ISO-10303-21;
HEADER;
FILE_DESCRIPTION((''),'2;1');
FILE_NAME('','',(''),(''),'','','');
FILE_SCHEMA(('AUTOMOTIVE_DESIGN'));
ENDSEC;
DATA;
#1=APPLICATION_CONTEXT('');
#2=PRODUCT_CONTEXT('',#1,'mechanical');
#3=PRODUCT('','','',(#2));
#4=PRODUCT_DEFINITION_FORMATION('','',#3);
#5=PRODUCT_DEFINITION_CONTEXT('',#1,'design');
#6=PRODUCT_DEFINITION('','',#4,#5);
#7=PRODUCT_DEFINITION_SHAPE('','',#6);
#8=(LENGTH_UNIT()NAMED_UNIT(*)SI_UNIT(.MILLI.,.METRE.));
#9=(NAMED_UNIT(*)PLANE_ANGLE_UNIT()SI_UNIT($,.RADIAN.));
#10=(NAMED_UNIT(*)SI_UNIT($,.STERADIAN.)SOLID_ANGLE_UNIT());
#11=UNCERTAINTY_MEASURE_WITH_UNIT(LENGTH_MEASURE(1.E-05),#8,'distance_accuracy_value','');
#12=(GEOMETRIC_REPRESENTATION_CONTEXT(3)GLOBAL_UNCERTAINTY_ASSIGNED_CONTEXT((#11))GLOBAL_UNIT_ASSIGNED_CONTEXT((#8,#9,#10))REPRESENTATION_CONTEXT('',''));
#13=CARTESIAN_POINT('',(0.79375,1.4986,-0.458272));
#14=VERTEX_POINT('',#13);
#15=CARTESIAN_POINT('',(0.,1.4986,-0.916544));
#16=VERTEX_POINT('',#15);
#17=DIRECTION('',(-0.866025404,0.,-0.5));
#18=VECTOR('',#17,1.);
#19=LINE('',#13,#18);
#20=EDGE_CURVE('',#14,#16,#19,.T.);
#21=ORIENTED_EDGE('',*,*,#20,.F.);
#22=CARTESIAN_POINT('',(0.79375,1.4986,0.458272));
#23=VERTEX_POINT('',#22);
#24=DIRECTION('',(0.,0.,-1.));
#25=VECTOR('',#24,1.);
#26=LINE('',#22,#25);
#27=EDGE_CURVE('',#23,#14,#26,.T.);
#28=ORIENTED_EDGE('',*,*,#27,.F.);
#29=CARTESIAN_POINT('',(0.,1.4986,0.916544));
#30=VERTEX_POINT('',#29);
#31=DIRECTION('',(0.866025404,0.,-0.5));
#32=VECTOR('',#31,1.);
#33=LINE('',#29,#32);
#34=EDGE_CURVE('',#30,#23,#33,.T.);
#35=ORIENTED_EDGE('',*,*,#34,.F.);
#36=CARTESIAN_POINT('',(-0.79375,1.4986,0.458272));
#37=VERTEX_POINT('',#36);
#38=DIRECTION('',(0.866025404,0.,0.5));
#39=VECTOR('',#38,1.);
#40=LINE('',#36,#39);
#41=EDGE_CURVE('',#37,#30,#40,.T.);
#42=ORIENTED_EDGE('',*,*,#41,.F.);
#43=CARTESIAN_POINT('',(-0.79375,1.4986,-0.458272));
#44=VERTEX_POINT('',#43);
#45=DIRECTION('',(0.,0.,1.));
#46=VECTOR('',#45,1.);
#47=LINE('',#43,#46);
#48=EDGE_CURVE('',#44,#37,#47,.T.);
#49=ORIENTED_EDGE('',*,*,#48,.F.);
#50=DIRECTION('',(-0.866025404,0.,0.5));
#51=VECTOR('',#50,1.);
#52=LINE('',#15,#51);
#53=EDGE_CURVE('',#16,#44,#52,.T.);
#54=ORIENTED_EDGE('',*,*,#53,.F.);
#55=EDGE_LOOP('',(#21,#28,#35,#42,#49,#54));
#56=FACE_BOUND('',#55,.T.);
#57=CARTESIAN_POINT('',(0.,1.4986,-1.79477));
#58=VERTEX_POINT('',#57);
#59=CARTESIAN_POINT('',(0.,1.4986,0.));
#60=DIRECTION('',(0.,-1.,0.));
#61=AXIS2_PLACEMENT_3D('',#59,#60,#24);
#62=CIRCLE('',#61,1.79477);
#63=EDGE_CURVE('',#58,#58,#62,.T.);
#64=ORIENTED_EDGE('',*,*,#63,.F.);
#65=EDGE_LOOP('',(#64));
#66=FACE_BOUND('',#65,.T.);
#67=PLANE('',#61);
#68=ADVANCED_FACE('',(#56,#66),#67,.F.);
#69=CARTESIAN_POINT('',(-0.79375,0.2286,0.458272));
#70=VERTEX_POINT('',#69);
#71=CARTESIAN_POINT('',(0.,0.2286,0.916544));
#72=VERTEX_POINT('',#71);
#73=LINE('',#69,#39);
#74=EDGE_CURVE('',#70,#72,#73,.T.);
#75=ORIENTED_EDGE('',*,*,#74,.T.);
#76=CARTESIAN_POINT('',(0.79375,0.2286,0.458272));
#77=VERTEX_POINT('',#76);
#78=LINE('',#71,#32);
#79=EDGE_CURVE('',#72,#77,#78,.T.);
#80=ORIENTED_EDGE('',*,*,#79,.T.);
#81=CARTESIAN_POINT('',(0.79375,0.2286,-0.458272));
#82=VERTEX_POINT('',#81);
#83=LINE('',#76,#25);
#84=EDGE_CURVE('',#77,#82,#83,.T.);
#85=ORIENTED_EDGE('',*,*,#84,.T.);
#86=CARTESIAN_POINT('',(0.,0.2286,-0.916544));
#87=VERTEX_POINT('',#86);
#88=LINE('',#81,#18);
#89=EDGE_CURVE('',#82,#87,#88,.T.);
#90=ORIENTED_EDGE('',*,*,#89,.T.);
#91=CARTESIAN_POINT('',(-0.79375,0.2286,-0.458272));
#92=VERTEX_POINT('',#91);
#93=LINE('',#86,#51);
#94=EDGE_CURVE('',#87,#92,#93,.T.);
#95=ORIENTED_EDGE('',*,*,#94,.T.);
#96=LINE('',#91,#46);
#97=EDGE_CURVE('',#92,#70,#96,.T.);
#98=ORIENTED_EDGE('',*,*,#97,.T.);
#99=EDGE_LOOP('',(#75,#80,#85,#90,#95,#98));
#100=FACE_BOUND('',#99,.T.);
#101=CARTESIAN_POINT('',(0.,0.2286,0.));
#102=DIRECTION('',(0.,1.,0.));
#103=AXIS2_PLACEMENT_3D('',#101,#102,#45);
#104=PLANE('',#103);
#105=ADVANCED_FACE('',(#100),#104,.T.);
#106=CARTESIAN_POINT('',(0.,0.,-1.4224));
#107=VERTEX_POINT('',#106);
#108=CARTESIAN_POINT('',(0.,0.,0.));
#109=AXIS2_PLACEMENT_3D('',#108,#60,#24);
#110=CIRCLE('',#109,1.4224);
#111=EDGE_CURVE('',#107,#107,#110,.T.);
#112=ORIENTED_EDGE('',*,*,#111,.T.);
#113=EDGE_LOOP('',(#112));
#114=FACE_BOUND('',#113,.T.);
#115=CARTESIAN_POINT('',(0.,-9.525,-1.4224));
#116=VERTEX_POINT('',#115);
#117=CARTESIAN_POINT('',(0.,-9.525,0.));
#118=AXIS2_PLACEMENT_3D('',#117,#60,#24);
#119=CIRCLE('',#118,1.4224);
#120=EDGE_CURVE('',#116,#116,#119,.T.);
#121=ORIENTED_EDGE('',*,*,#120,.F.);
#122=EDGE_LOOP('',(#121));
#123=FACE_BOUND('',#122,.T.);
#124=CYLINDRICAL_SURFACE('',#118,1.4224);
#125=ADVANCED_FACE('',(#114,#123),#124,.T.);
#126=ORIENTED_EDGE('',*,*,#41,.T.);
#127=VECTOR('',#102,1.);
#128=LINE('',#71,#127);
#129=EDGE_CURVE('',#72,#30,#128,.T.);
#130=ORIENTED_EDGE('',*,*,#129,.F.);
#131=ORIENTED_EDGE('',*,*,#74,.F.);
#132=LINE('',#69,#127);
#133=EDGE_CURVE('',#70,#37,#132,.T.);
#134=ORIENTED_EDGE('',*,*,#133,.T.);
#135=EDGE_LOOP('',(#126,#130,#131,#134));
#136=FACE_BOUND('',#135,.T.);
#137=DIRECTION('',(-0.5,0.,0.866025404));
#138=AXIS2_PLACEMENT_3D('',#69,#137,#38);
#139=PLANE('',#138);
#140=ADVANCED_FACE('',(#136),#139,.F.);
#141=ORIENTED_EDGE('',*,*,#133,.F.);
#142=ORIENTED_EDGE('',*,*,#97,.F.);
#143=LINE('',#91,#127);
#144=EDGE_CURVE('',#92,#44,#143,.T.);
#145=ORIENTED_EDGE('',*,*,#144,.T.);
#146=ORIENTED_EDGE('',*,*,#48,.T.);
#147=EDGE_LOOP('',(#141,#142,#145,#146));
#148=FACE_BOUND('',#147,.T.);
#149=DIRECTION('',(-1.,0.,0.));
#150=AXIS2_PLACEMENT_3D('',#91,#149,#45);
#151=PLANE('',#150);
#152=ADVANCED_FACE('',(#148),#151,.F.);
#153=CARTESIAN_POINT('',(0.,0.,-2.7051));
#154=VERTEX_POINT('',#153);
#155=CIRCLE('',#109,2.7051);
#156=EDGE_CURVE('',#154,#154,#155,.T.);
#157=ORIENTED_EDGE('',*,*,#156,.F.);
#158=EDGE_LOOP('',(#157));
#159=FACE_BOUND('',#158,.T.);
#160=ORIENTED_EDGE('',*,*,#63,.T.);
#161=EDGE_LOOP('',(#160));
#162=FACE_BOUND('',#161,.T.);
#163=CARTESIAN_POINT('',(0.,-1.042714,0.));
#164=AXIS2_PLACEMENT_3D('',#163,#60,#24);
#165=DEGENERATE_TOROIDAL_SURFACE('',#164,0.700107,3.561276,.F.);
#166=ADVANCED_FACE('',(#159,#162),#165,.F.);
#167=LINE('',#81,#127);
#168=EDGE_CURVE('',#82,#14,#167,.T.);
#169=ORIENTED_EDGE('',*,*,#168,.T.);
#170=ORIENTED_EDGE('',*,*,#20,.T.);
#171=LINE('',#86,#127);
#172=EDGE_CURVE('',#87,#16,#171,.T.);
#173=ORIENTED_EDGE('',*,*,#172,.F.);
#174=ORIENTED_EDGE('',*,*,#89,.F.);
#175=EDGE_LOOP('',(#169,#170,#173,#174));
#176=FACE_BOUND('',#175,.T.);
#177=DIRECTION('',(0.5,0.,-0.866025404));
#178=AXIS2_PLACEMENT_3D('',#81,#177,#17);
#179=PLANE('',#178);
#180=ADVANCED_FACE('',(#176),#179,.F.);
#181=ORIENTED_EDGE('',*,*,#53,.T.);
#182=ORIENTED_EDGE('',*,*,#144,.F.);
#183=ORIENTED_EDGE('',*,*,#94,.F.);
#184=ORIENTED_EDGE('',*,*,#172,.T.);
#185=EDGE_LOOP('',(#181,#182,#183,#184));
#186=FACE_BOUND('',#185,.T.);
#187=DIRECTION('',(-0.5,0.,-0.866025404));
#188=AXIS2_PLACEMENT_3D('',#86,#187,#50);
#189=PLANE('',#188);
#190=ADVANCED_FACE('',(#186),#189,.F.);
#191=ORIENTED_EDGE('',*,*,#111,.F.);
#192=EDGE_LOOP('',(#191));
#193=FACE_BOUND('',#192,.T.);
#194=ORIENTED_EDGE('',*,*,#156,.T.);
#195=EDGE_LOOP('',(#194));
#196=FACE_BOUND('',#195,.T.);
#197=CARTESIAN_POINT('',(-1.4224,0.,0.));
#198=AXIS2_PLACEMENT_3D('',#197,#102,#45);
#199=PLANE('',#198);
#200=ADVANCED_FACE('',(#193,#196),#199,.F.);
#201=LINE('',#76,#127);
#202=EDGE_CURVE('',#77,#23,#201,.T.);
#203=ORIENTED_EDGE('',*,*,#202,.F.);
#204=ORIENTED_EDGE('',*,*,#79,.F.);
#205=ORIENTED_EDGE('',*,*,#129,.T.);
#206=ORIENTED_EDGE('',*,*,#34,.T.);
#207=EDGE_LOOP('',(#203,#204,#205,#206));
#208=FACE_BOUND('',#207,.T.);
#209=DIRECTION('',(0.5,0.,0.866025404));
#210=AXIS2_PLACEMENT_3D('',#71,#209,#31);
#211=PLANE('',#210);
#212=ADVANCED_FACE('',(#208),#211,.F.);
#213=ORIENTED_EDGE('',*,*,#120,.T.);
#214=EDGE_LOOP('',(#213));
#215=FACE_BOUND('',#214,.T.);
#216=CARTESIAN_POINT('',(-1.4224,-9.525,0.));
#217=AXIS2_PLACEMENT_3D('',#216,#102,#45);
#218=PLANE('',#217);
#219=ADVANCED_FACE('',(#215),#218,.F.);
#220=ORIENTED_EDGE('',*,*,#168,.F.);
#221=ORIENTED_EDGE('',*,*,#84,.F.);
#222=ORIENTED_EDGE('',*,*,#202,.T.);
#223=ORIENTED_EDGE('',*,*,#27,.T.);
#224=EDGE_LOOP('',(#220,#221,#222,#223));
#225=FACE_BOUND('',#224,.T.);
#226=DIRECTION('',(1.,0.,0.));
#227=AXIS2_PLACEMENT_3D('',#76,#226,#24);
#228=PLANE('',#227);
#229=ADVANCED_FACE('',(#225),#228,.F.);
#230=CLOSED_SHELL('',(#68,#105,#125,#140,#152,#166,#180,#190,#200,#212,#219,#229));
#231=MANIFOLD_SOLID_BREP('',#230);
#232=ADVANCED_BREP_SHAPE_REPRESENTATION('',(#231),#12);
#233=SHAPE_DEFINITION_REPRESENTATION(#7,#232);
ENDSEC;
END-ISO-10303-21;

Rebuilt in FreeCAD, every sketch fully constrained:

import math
import FreeCAD as App
import Part
import Sketcher
from FreeCAD import Vector
Q = App.Units.Quantity


def add_polygon(sketch, points):
    """Adds a closed chain of lines whose ends are joined by coincident constraints."""
    first, n = sketch.GeometryCount, len(points)
    for a, b in zip(points, points[1:] + points[:1]):
        sketch.addGeometry(Part.LineSegment(App.Vector(*a, 0), App.Vector(*b, 0)), False)
    for i in range(n):
        sketch.addConstraint(Sketcher.Constraint("Coincident", first + i, 2, first + (i + 1) % n, 1))

doc = App.newDocument("Part")
body = doc.addObject("PartDesign::Body", "Body")

sketch1 = doc.addObject("Sketcher::SketchObject", "Sketch")
body.addObject(sketch1)
sketch1.AttachmentSupport = (doc.XY_Plane, [""])
sketch1.MapMode = "FlatFace"
sketch1.addGeometry([
    Part.LineSegment(Vector(-2.7, 0, 0), Vector(-1.4, 0, 0)),
    Part.LineSegment(Vector(-1.4, 0, 0), Vector(-1.4, -9.5, 0)),
    Part.LineSegment(Vector(-1.4, -9.5, 0), Vector(0, -9.5, 0)),
    Part.LineSegment(Vector(0, -9.5, 0), Vector(0, 1.5, 0)),
    Part.LineSegment(Vector(0, 1.5, 0), Vector(-1.8, 1.5, 0)),
    Part.ArcOfCircle(Part.Circle(Vector(0.7, -1, 0), Vector(0, 0, 1), 3.6), math.radians(134), math.radians(163)),
], False)
sketch1.addConstraint([
    Sketcher.Constraint("Coincident", 0, 2, 1, 1),
    Sketcher.Constraint("Coincident", 1, 2, 2, 1),
    Sketcher.Constraint("Coincident", 2, 2, 3, 1),
    Sketcher.Constraint("Coincident", 3, 2, 4, 1),
    Sketcher.Constraint("Coincident", 4, 2, 5, 1),
    Sketcher.Constraint("Coincident", 5, 2, 0, 1),
    Sketcher.Constraint("Horizontal", 0),
    Sketcher.Constraint("Vertical", 1),
    Sketcher.Constraint("Horizontal", 2),
    Sketcher.Constraint("Vertical", 3),
    Sketcher.Constraint("Horizontal", 4),
    Sketcher.Constraint("PointOnObject", 0, 2, -1),
    Sketcher.Constraint("PointOnObject", 2, 2, -2),
    Sketcher.Constraint("DistanceX", 2, 1, 2, 2, Q("0.056 in")),
    Sketcher.Constraint("DistanceY", 1, 2, 1, 1, Q("0.375 in")),
    Sketcher.Constraint("DistanceY", 3, 1, 3, 2, Q("0.434 in")),
    Sketcher.Constraint("DistanceX", 0, 1, 0, 2, Q("0.0505 in")),
    Sketcher.Constraint("Radius", 5, 3.561276),
    Sketcher.Constraint("DistanceX", 4, 2, 4, 1, 1.79477),
])
revolution = doc.addObject("PartDesign::Revolution", "Revolution")
body.addObject(revolution)
revolution.Profile = sketch1
revolution.ReferenceAxis = (sketch1, ["V_Axis"])
revolution.Angle = 360

sketch2 = doc.addObject("Sketcher::SketchObject", "Sketch001")
body.addObject(sketch2)
sketch2.AttachmentSupport = (doc.XZ_Plane, [""])
sketch2.MapMode = "FlatFace"
sketch2.AttachmentOffset = App.Placement(Vector(0, 0, -0.059 * 25.4), App.Rotation())
add_polygon(sketch2, [(-0.8, -0.5), (-0.8, 0.5), (0, 0.9), (0.8, 0.5), (0.8, -0.5), (0, -0.9)])
sketch2.addConstraint([
    Sketcher.Constraint("Vertical", 0),
    Sketcher.Constraint("Vertical", 3),
    Sketcher.Constraint("Symmetric", 0, 2, 3, 2, -1, 1),
    Sketcher.Constraint("Symmetric", 1, 2, 4, 2, -1, 1),
    Sketcher.Constraint("PointOnObject", 1, 2, -2),
    Sketcher.Constraint("Parallel", 2, 5),
    Sketcher.Constraint("Horizontal", 0, 2, 2, 2),
    Sketcher.Constraint("Angle", 1, Q("30 deg")),
    Sketcher.Constraint("DistanceX", 0, 2, -1, 1, Q("0.03125 in")),
    Sketcher.Constraint("DistanceY", 0, 1, 0, 2, 0.916544),
])
pocket1 = doc.addObject("PartDesign::Pocket", "Pocket")
body.addObject(pocket1)
pocket1.Profile = sketch2
pocket1.Length = Q("0.05 in")
pocket1.Reversed = True

doc.recompute()
